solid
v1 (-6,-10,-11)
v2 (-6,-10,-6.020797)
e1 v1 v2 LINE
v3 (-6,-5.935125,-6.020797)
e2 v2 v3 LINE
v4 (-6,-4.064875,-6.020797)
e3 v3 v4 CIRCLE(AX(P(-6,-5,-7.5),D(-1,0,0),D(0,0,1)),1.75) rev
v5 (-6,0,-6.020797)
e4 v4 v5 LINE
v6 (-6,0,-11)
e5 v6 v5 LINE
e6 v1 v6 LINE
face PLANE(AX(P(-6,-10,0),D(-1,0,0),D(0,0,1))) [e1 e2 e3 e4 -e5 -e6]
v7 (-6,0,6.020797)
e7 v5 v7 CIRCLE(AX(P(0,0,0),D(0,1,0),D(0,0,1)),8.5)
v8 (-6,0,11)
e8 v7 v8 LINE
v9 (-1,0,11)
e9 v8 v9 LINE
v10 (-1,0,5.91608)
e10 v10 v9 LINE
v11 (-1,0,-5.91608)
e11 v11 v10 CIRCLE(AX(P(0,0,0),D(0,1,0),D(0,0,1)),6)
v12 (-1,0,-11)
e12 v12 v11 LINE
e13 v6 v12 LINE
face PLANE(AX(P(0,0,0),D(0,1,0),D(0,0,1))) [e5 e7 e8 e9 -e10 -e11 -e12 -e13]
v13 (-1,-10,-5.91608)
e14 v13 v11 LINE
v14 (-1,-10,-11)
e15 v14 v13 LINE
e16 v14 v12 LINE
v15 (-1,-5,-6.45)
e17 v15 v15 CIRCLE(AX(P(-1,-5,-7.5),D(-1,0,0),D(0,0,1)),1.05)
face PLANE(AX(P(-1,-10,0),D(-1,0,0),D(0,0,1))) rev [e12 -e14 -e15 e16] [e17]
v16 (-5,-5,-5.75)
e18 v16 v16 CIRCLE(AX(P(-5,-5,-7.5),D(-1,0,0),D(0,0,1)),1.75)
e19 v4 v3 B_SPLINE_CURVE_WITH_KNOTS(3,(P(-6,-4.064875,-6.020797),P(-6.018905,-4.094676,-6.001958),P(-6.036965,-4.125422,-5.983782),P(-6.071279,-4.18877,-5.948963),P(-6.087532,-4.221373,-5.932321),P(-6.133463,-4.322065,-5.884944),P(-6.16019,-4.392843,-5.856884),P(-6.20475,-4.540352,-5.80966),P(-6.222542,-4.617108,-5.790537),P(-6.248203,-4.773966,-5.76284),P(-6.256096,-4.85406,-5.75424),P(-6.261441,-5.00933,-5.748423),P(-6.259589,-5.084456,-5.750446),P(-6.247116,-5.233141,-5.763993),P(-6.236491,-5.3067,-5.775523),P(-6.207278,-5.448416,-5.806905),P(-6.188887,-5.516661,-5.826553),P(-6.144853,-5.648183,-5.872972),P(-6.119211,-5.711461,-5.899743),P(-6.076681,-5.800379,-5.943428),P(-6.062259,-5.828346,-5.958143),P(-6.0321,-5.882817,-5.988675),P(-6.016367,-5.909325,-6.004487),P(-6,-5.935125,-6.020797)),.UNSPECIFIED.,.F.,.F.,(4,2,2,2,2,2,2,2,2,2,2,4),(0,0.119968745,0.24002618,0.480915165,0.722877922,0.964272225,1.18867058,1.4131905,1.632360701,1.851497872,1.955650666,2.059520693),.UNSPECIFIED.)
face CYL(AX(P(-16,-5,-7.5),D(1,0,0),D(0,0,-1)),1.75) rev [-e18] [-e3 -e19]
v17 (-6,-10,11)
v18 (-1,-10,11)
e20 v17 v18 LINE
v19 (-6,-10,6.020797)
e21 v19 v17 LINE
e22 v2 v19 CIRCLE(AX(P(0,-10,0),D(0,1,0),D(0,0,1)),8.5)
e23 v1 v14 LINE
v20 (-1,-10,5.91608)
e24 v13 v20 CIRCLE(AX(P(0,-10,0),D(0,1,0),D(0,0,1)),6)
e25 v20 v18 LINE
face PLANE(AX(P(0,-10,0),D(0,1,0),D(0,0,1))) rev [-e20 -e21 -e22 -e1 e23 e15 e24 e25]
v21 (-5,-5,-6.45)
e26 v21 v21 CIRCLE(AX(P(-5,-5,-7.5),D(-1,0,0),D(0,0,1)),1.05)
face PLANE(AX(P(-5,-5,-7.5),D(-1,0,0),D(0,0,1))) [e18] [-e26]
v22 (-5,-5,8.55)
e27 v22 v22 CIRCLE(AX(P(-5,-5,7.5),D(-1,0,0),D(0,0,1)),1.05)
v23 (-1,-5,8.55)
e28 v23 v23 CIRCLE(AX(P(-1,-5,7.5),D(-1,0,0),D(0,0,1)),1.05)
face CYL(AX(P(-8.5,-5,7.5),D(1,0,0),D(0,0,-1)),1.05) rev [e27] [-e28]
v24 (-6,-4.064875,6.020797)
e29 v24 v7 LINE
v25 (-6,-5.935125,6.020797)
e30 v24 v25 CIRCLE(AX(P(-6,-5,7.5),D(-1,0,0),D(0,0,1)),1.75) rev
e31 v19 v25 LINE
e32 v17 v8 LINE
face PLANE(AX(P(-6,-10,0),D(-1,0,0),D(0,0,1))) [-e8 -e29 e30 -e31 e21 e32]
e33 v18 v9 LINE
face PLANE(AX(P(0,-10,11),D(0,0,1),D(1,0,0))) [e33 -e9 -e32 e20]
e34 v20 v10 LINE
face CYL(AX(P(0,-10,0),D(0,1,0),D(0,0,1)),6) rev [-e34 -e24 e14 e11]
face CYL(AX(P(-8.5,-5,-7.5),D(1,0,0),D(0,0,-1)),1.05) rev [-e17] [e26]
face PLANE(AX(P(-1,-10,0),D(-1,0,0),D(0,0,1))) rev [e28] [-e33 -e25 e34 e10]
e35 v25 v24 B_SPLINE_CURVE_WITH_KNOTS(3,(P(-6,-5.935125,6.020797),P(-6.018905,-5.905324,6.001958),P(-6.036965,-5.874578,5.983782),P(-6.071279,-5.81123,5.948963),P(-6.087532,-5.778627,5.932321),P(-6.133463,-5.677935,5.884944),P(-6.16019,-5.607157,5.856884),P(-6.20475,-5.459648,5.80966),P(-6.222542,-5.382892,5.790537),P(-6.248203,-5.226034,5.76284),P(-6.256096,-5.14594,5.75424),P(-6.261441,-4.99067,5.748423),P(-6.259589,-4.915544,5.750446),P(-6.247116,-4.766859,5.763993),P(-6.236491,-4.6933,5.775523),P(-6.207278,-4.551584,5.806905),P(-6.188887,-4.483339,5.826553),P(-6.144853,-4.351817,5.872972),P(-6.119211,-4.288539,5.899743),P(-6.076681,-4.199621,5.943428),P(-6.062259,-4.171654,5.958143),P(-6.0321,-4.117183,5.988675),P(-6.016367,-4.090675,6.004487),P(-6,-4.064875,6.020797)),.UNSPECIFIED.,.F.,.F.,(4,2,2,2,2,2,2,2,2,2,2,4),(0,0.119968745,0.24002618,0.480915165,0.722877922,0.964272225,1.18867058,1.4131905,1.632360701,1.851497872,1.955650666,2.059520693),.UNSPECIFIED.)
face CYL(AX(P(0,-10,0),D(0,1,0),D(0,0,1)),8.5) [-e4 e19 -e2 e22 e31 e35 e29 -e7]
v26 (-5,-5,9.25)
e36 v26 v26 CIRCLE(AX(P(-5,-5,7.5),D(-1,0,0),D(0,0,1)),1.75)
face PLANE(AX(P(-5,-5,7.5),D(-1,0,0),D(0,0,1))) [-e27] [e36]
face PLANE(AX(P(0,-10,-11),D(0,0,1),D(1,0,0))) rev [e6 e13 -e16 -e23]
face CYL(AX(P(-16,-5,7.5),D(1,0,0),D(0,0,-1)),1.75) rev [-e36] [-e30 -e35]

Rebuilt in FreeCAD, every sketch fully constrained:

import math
import FreeCAD as App
import Part
import Sketcher

V = App.Vector
Q = App.Units.Quantity

doc = App.newDocument("Part")
body = doc.addObject("PartDesign::Body", "Body")

# Sketch on XZ plane
sketch1 = body.newObject("Sketcher::SketchObject", "Sketch")
sketch1.AttachmentSupport = (doc.getObject("XZ_Plane"), [""])
sketch1.MapMode = "FlatFace"
sketch1.addGeometry(Part.ArcOfCircle(Part.Circle(V(0, 0, 0), V(0, 0, 1), 6), math.radians(100), math.radians(180)), False)
sketch1.addGeometry(Part.ArcOfCircle(Part.Circle(V(0, 0, 0), V(0, 0, 1), 6), math.radians(180), math.radians(260)), False)
sketch1.addGeometry(Part.LineSegment(V(-1, -5.9, 0), V(-1, -11, 0)), False)
sketch1.addGeometry(Part.LineSegment(V(-1, -11, 0), V(-6, -11, 0)), False)
sketch1.addGeometry(Part.LineSegment(V(-6, -11, 0), V(-6, -6, 0)), False)
sketch1.addGeometry(Part.ArcOfCircle(Part.Circle(V(0, 0, 0), V(0, 0, 1), 8.5), math.radians(135), math.radians(225)), False)
sketch1.addGeometry(Part.LineSegment(V(-6, 6, 0), V(-6, 11, 0)), False)
sketch1.addGeometry(Part.LineSegment(V(-6, 11, 0), V(-1, 11, 0)), False)
sketch1.addGeometry(Part.LineSegment(V(-1, 11, 0), V(-1, 5.9, 0)), False)
sketch1.addConstraint(Sketcher.Constraint("Tangent", 0, 2, 1, 1))
sketch1.addConstraint(Sketcher.Constraint("Coincident", 1, 2, 2, 1))
sketch1.addConstraint(Sketcher.Constraint("Coincident", 2, 2, 3, 1))
sketch1.addConstraint(Sketcher.Constraint("Coincident", 3, 2, 4, 1))
sketch1.addConstraint(Sketcher.Constraint("Coincident", 4, 2, 5, 2))
sketch1.addConstraint(Sketcher.Constraint("Coincident", 5, 1, 6, 1))
sketch1.addConstraint(Sketcher.Constraint("Coincident", 6, 2, 7, 1))
sketch1.addConstraint(Sketcher.Constraint("Coincident", 7, 2, 8, 1))
sketch1.addConstraint(Sketcher.Constraint("Coincident", 8, 2, 0, 1))
sketch1.addConstraint(Sketcher.Constraint("Vertical", 2))
sketch1.addConstraint(Sketcher.Constraint("Horizontal", 3))
sketch1.addConstraint(Sketcher.Constraint("Vertical", 4))
sketch1.addConstraint(Sketcher.Constraint("Vertical", 6))
sketch1.addConstraint(Sketcher.Constraint("Horizontal", 7))
sketch1.addConstraint(Sketcher.Constraint("Vertical", 8))
sketch1.addConstraint(Sketcher.Constraint("Coincident", 0, 3, -1, 1))
sketch1.addConstraint(Sketcher.Constraint("Coincident", 5, 3, -1, 1))
sketch1.addConstraint(Sketcher.Constraint("Equal", 0, 1))
sketch1.addConstraint(Sketcher.Constraint("Symmetric", 3, 2, 6, 2, -1))
sketch1.addConstraint(Sketcher.Constraint("PointOnObject", 0, 2, -1))
sketch1.addConstraint(Sketcher.Constraint("Vertical", 0, 2, 3, 2))
sketch1.addConstraint(Sketcher.Constraint("Vertical", 2, 2, 7, 2))
sketch1.addConstraint(Sketcher.Constraint("Radius", 0, Q("6 mm")))
sketch1.addConstraint(Sketcher.Constraint("Radius", 5, Q("8.5 mm")))
sketch1.addConstraint(Sketcher.Constraint("DistanceX", 3, 2, 3, 1, Q("5 mm")))
sketch1.addConstraint(Sketcher.Constraint("DistanceY", 2, 2, -1, 1, Q("11 mm")))
pad1 = body.newObject("PartDesign::Pad", "Pad")
pad1.Profile = sketch1
pad1.Length = 10

# Sketch on YZ plane
sketch2 = body.newObject("Sketcher::SketchObject", "Sketch001")
sketch2.AttachmentSupport = (doc.getObject("YZ_Plane"), [""])
sketch2.MapMode = "FlatFace"
sketch2.addGeometry(Part.Circle(V(-5, 7.5, 0), V(0, 0, 1), 1.1), False)
sketch2.addGeometry(Part.Circle(V(-5, -7.5, 0), V(0, 0, 1), 1.1), False)
sketch2.addConstraint(Sketcher.Constraint("Equal", 0, 1))
sketch2.addConstraint(Sketcher.Constraint("Symmetric", 0, 3, 1, 3, -1))
sketch2.addConstraint(Sketcher.Constraint("Diameter", 0, Q("2.1 mm")))
sketch2.addConstraint(Sketcher.Constraint("DistanceX", 0, 3, -1, 1, Q("5 mm")))
sketch2.addConstraint(Sketcher.Constraint("DistanceY", 1, 3, 0, 3, Q("15 mm")))
pocket1 = body.newObject("PartDesign::Pocket", "Pocket")
pocket1.Profile = sketch2
pocket1.Type = "ThroughAll"
pocket1.Midplane = True

# Sketch on YZ plane
sketch3 = body.newObject("Sketcher::SketchObject", "Sketch002")
sketch3.AttachmentSupport = (doc.getObject("YZ_Plane"), [""])
sketch3.MapMode = "FlatFace"
sketch3.AttachmentOffset = App.Placement(V(0, 0, -6), App.Rotation())
sketch3.addGeometry(Part.Circle(V(-5, 7.5, 0), V(0, 0, 1), 1.8), False)
sketch3.addGeometry(Part.Circle(V(-5, 7.5, 0), V(0, 0, 1), 1.1), False)
sketch3.addGeometry(Part.Circle(V(-5, -7.5, 0), V(0, 0, 1), 1.8), False)
sketch3.addGeometry(Part.Circle(V(-5, -7.5, 0), V(0, 0, 1), 1.1), False)
sketch3.addConstraint(Sketcher.Constraint("Coincident", 1, 3, 0, 3))
sketch3.addConstraint(Sketcher.Constraint("Coincident", 3, 3, 2, 3))
sketch3.addConstraint(Sketcher.Constraint("Equal", 0, 2))
sketch3.addConstraint(Sketcher.Constraint("Equal", 1, 3))
sketch3.addConstraint(Sketcher.Constraint("Symmetric", 0, 3, 2, 3, -1))
sketch3.addConstraint(Sketcher.Constraint("Diameter", 0, Q("3.5 mm")))
sketch3.addConstraint(Sketcher.Constraint("Diameter", 1, Q("2.1 mm")))
sketch3.addConstraint(Sketcher.Constraint("DistanceX", 0, 3, -1, 1, Q("5 mm")))
sketch3.addConstraint(Sketcher.Constraint("DistanceY", 2, 3, 0, 3, Q("15 mm")))
pocket2 = body.newObject("PartDesign::Pocket", "Pocket001")
pocket2.Profile = sketch3
pocket2.Type = "TwoLengths"
pocket2.Length = 1
pocket2.Length2 = 10
pocket2.Reversed = True

doc.recompute()
